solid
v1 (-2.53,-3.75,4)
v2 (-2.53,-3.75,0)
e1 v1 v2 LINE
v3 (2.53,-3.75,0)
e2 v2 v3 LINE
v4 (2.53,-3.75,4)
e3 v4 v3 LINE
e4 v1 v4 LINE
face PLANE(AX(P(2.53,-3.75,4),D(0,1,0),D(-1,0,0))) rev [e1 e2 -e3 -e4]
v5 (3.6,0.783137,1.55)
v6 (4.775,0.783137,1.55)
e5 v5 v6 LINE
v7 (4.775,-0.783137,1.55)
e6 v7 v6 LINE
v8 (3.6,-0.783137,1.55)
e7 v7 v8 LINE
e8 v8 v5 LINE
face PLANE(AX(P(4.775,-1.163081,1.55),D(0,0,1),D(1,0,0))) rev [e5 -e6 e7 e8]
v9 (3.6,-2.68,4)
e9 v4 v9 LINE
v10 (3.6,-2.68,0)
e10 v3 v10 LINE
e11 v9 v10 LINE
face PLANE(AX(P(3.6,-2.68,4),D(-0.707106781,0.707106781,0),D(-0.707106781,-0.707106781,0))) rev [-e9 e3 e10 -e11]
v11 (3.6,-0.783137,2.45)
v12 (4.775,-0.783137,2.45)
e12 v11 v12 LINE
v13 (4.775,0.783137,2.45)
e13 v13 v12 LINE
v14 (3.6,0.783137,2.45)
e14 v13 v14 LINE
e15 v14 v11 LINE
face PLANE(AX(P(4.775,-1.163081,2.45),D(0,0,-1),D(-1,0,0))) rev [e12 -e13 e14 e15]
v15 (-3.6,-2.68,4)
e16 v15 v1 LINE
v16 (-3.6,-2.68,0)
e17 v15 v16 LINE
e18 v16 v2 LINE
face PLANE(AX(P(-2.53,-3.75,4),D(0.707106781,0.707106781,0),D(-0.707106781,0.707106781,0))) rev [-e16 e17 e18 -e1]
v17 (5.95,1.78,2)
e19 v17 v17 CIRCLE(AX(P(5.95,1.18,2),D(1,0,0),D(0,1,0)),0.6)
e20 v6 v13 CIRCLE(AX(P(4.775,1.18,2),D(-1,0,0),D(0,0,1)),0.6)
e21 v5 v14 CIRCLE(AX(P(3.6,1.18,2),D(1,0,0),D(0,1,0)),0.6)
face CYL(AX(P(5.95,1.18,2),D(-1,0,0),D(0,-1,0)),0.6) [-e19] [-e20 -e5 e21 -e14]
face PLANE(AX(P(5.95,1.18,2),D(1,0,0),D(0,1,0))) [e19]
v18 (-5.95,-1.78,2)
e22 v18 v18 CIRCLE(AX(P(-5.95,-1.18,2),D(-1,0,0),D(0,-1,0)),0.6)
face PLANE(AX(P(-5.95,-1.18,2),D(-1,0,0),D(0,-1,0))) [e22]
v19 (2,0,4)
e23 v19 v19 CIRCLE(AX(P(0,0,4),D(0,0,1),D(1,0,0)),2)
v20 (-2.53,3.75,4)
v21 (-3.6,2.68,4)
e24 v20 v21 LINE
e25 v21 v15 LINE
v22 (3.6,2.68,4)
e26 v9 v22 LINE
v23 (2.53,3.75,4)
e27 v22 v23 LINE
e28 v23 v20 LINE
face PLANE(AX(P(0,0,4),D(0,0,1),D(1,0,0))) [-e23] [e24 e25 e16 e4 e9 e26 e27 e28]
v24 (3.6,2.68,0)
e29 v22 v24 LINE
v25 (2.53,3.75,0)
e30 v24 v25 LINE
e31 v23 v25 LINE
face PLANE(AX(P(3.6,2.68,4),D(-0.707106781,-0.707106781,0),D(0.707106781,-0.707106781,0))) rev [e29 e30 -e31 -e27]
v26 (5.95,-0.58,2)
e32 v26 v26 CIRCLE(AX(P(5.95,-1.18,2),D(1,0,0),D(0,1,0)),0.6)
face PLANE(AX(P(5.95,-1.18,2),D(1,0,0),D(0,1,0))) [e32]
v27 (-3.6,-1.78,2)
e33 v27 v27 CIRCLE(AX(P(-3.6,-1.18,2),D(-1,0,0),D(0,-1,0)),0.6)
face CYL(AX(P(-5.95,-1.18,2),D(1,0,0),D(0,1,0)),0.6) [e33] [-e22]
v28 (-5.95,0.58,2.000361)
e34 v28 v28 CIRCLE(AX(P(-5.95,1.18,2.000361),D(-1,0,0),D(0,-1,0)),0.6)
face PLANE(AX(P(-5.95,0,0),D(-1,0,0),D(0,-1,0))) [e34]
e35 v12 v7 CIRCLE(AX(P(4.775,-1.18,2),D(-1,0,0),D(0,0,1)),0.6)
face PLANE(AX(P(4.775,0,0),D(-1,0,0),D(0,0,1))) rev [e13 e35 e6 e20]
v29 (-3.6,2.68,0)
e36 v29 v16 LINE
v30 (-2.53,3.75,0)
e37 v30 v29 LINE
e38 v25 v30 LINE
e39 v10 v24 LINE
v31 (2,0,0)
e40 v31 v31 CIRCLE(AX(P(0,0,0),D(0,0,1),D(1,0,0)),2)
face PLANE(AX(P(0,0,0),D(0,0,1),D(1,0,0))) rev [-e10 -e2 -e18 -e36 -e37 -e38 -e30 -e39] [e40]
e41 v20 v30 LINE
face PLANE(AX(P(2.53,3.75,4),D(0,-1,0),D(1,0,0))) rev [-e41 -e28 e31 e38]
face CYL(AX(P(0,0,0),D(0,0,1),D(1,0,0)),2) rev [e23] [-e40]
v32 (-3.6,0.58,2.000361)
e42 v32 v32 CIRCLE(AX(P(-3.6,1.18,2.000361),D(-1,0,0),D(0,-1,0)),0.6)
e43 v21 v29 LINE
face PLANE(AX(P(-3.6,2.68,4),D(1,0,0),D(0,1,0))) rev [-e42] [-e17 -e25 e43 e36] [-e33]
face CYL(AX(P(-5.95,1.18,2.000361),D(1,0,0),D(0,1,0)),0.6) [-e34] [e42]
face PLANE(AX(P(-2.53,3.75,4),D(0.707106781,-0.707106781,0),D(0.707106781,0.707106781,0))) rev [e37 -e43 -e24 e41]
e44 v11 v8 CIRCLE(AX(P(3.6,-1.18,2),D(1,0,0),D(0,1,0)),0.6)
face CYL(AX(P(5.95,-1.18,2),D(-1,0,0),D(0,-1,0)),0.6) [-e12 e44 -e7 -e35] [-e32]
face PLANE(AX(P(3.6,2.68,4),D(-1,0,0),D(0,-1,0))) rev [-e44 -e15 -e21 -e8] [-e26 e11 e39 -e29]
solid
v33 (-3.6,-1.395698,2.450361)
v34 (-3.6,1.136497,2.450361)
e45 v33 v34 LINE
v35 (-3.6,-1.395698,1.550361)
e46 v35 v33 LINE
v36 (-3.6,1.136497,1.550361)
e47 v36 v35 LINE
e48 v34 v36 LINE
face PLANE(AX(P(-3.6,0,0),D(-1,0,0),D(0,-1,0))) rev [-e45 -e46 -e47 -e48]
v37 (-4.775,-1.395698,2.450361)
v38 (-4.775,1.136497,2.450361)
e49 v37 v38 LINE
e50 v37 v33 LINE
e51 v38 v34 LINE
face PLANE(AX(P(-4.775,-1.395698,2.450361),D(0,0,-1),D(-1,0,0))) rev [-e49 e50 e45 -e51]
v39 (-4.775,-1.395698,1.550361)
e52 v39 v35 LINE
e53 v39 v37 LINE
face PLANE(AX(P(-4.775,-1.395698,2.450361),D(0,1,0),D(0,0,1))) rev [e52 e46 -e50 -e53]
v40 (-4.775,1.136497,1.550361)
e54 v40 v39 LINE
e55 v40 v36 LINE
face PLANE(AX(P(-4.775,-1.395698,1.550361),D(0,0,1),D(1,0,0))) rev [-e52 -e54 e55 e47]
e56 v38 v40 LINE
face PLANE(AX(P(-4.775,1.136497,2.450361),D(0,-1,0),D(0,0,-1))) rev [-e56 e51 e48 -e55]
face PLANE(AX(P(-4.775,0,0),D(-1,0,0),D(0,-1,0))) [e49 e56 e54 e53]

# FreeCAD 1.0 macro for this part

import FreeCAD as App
import Part
import Sketcher

V = App.Vector

doc = App.newDocument("Part")
body = doc.addObject("PartDesign::Body", "Body")

# Sketch on XY plane
sketch1 = doc.addObject("Sketcher::SketchObject", "Sketch")
body.addObject(sketch1)
sketch1.AttachmentSupport = (doc.XY_Plane, [""])
sketch1.MapMode = "FlatFace"
sketch1.addGeometry([
    Part.LineSegment(V(-2.5, 3.8, 0), V(-3.6, 2.7, 0)),  # 0
    Part.LineSegment(V(-3.6, 2.7, 0), V(-3.6, -2.7, 0)),  # 1
    Part.LineSegment(V(-3.6, -2.7, 0), V(-2.5, -3.8, 0)),  # 2
    Part.LineSegment(V(-2.5, -3.8, 0), V(2.5, -3.8, 0)),  # 3
    Part.LineSegment(V(2.5, -3.8, 0), V(3.6, -2.7, 0)),  # 4
    Part.LineSegment(V(3.6, -2.7, 0), V(3.6, 2.7, 0)),  # 5
    Part.LineSegment(V(3.6, 2.7, 0), V(2.5, 3.8, 0)),  # 6
    Part.LineSegment(V(2.5, 3.8, 0), V(-2.5, 3.8, 0)),  # 7
], False)
sketch1.addConstraint([
    Sketcher.Constraint("Coincident", 0, 2, 1, 1),
    Sketcher.Constraint("Coincident", 1, 2, 2, 1),
    Sketcher.Constraint("Coincident", 2, 2, 3, 1),
    Sketcher.Constraint("Coincident", 3, 2, 4, 1),
    Sketcher.Constraint("Coincident", 4, 2, 5, 1),
    Sketcher.Constraint("Coincident", 5, 2, 6, 1),
    Sketcher.Constraint("Coincident", 6, 2, 7, 1),
    Sketcher.Constraint("Coincident", 7, 2, 0, 1),
    Sketcher.Constraint("Vertical", 1),
    Sketcher.Constraint("Horizontal", 3),
    Sketcher.Constraint("Vertical", 5),
    Sketcher.Constraint("Horizontal", 7),
    Sketcher.Constraint("Symmetric", 0, 2, 4, 2, -1, 1),
    Sketcher.Constraint("Symmetric", 2, 2, 6, 2, -1, 1),
    Sketcher.Constraint("Perpendicular", 0, 2),
    Sketcher.Constraint("Perpendicular", 2, 4),
    Sketcher.Constraint("Perpendicular", 4, 6),
    Sketcher.Constraint("Horizontal", 1, 2, 4, 2),
    Sketcher.Constraint("Vertical", 3, 2, 6, 2),
    Sketcher.Constraint("DistanceX", 3, 1, 3, 2, 5.06),
    Sketcher.Constraint("DistanceY", 1, 2, 1, 1, 5.36),
    Sketcher.Constraint("DistanceX", 0, 2, -1, 1, 3.6),
])
pad1 = doc.addObject("PartDesign::Pad", "Pad")
body.addObject(pad1)
pad1.Profile = sketch1
pad1.Length = 4

# Sketch on XY plane
sketch2 = doc.addObject("Sketcher::SketchObject", "Sketch001")
body.addObject(sketch2)
sketch2.AttachmentSupport = (doc.XY_Plane, [""])
sketch2.MapMode = "FlatFace"
sketch2.AttachmentOffset = App.Placement(V(0, 0, 4), App.Rotation())
sketch2.addGeometry(Part.Circle(V(0, 0, 0), V(0, 0, 1), 2), False)
sketch2.addConstraint([
    Sketcher.Constraint("Coincident", 0, 3, -1, 1),
    Sketcher.Constraint("Diameter", 0, 4.0),
])
pocket1 = doc.addObject("PartDesign::Pocket", "Pocket")
body.addObject(pocket1)
pocket1.Profile = sketch2
pocket1.Type = "ThroughAll"

# Sketch on YZ plane
sketch3 = doc.addObject("Sketcher::SketchObject", "Sketch002")
body.addObject(sketch3)
sketch3.AttachmentSupport = (doc.YZ_Plane, [""])
sketch3.MapMode = "FlatFace"
sketch3.AttachmentOffset = App.Placement(V(0, 0, -3.6), App.Rotation())
sketch3.addGeometry([
    Part.Circle(V(1.2, 2, 0), V(0, 0, 1), 0.6),
    Part.Circle(V(-1.2, 2, 0), V(0, 0, 1), 0.6),
], False)
sketch3.addConstraint([
    Sketcher.Constraint("Equal", 0, 1),
    Sketcher.Constraint("Diameter", 0, 1.2),
    Sketcher.Constraint("DistanceY", -1, 1, 1, 3, 2.0),
    Sketcher.Constraint("DistanceX", -1, 1, 0, 3, 1.18),
    Sketcher.Constraint("DistanceX", 1, 3, -1, 1, 1.18),
    Sketcher.Constraint("DistanceY", -1, 1, 0, 3, 2.000361),
])
pad2 = doc.addObject("PartDesign::Pad", "Pad001")
body.addObject(pad2)
pad2.Profile = sketch3
pad2.Length = 2.35
pad2.Reversed = True

# Sketch on YZ plane
sketch4 = doc.addObject("Sketcher::SketchObject", "Sketch003")
body.addObject(sketch4)
sketch4.AttachmentSupport = (doc.YZ_Plane, [""])
sketch4.MapMode = "FlatFace"
sketch4.AttachmentOffset = App.Placement(V(0, 0, 5.95), App.Rotation())
sketch4.addGeometry([
    Part.Circle(V(1.2, 2, 0), V(0, 0, 1), 0.6),
    Part.Circle(V(-1.2, 2, 0), V(0, 0, 1), 0.6),
], False)
sketch4.addConstraint([
    Sketcher.Constraint("Equal", 0, 1),
    Sketcher.Constraint("Symmetric", 0, 3, 1, 3, -2),
    Sketcher.Constraint("Diameter", 0, 1.2),
    Sketcher.Constraint("DistanceY", -1, 1, 0, 3, 2.0),
    Sketcher.Constraint("DistanceX", -1, 1, 0, 3, 1.18),
])
pad3 = doc.addObject("PartDesign::Pad", "Pad002")
body.addObject(pad3)
pad3.Profile = sketch4
pad3.Length = 2.35
pad3.Reversed = True

# Sketch on YZ plane
sketch5 = doc.addObject("Sketcher::SketchObject", "Sketch004")
body.addObject(sketch5)
sketch5.AttachmentSupport = (doc.YZ_Plane, [""])
sketch5.MapMode = "FlatFace"
sketch5.AttachmentOffset = App.Placement(V(0, 0, 3.6), App.Rotation())
sketch5.addGeometry([
    Part.LineSegment(V(1.2, 2.5, 0), V(-1.2, 2.5, 0)),
    Part.LineSegment(V(-1.2, 2.5, 0), V(-1.2, 1.6, 0)),
    Part.LineSegment(V(-1.2, 1.6, 0), V(1.2, 1.6, 0)),
    Part.LineSegment(V(1.2, 1.6, 0), V(1.2, 2.5, 0)),
], False)
sketch5.addConstraint([
    Sketcher.Constraint("Coincident", 0, 2, 1, 1),
    Sketcher.Constraint("Coincident", 1, 2, 2, 1),
    Sketcher.Constraint("Coincident", 2, 2, 3, 1),
    Sketcher.Constraint("Coincident", 3, 2, 0, 1),
    Sketcher.Constraint("Horizontal", 0),
    Sketcher.Constraint("Vertical", 1),
    Sketcher.Constraint("Horizontal", 2),
    Sketcher.Constraint("Vertical", 3),
    Sketcher.Constraint("DistanceY", 1, 2, 1, 1, 0.9),
    Sketcher.Constraint("DistanceY", -1, 1, 0, 2, 2.45),
    Sketcher.Constraint("DistanceX", 0, 2, 0, 1, 2.405917),
    Sketcher.Constraint("DistanceX", 0, 2, -1, 1, 1.163081),
])
pad4 = doc.addObject("PartDesign::Pad", "Pad003")
body.addObject(pad4)
pad4.Profile = sketch5
pad4.Length = 1.175
body2 = doc.addObject("PartDesign::Body", "Body001")

# Sketch on YZ plane
sketch6 = doc.addObject("Sketcher::SketchObject", "Sketch005")
body2.addObject(sketch6)
sketch6.AttachmentSupport = (doc.getObject("YZ_Plane001"), [""])
sketch6.MapMode = "FlatFace"
sketch6.AttachmentOffset = App.Placement(V(0, 0, -3.6), App.Rotation())
sketch6.addGeometry([
    Part.LineSegment(V(1.1, 1.6, 0), V(-1.4, 1.6, 0)),
    Part.LineSegment(V(-1.4, 1.6, 0), V(-1.4, 2.5, 0)),
    Part.LineSegment(V(-1.4, 2.5, 0), V(1.1, 2.5, 0)),
    Part.LineSegment(V(1.1, 2.5, 0), V(1.1, 1.6, 0)),
], False)
sketch6.addConstraint([
    Sketcher.Constraint("Coincident", 0, 2, 1, 1),
    Sketcher.Constraint("Coincident", 1, 2, 2, 1),
    Sketcher.Constraint("Coincident", 2, 2, 3, 1),
    Sketcher.Constraint("Coincident", 3, 2, 0, 1),
    Sketcher.Constraint("Horizontal", 0),
    Sketcher.Constraint("Vertical", 1),
    Sketcher.Constraint("Horizontal", 2),
    Sketcher.Constraint("Vertical", 3),
    Sketcher.Constraint("DistanceY", 1, 1, 1, 2, 0.9),
    Sketcher.Constraint("DistanceX", 0, 2, 0, 1, 2.532194),
    Sketcher.Constraint("DistanceY", -1, 1, 0, 2, 1.550361),
    Sketcher.Constraint("DistanceX", 0, 2, -1, 1, 1.395698),
])
pad5 = doc.addObject("PartDesign::Pad", "Pad004")
body2.addObject(pad5)
pad5.Profile = sketch6
pad5.Length = 1.175
pad5.Reversed = True

doc.recompute()
